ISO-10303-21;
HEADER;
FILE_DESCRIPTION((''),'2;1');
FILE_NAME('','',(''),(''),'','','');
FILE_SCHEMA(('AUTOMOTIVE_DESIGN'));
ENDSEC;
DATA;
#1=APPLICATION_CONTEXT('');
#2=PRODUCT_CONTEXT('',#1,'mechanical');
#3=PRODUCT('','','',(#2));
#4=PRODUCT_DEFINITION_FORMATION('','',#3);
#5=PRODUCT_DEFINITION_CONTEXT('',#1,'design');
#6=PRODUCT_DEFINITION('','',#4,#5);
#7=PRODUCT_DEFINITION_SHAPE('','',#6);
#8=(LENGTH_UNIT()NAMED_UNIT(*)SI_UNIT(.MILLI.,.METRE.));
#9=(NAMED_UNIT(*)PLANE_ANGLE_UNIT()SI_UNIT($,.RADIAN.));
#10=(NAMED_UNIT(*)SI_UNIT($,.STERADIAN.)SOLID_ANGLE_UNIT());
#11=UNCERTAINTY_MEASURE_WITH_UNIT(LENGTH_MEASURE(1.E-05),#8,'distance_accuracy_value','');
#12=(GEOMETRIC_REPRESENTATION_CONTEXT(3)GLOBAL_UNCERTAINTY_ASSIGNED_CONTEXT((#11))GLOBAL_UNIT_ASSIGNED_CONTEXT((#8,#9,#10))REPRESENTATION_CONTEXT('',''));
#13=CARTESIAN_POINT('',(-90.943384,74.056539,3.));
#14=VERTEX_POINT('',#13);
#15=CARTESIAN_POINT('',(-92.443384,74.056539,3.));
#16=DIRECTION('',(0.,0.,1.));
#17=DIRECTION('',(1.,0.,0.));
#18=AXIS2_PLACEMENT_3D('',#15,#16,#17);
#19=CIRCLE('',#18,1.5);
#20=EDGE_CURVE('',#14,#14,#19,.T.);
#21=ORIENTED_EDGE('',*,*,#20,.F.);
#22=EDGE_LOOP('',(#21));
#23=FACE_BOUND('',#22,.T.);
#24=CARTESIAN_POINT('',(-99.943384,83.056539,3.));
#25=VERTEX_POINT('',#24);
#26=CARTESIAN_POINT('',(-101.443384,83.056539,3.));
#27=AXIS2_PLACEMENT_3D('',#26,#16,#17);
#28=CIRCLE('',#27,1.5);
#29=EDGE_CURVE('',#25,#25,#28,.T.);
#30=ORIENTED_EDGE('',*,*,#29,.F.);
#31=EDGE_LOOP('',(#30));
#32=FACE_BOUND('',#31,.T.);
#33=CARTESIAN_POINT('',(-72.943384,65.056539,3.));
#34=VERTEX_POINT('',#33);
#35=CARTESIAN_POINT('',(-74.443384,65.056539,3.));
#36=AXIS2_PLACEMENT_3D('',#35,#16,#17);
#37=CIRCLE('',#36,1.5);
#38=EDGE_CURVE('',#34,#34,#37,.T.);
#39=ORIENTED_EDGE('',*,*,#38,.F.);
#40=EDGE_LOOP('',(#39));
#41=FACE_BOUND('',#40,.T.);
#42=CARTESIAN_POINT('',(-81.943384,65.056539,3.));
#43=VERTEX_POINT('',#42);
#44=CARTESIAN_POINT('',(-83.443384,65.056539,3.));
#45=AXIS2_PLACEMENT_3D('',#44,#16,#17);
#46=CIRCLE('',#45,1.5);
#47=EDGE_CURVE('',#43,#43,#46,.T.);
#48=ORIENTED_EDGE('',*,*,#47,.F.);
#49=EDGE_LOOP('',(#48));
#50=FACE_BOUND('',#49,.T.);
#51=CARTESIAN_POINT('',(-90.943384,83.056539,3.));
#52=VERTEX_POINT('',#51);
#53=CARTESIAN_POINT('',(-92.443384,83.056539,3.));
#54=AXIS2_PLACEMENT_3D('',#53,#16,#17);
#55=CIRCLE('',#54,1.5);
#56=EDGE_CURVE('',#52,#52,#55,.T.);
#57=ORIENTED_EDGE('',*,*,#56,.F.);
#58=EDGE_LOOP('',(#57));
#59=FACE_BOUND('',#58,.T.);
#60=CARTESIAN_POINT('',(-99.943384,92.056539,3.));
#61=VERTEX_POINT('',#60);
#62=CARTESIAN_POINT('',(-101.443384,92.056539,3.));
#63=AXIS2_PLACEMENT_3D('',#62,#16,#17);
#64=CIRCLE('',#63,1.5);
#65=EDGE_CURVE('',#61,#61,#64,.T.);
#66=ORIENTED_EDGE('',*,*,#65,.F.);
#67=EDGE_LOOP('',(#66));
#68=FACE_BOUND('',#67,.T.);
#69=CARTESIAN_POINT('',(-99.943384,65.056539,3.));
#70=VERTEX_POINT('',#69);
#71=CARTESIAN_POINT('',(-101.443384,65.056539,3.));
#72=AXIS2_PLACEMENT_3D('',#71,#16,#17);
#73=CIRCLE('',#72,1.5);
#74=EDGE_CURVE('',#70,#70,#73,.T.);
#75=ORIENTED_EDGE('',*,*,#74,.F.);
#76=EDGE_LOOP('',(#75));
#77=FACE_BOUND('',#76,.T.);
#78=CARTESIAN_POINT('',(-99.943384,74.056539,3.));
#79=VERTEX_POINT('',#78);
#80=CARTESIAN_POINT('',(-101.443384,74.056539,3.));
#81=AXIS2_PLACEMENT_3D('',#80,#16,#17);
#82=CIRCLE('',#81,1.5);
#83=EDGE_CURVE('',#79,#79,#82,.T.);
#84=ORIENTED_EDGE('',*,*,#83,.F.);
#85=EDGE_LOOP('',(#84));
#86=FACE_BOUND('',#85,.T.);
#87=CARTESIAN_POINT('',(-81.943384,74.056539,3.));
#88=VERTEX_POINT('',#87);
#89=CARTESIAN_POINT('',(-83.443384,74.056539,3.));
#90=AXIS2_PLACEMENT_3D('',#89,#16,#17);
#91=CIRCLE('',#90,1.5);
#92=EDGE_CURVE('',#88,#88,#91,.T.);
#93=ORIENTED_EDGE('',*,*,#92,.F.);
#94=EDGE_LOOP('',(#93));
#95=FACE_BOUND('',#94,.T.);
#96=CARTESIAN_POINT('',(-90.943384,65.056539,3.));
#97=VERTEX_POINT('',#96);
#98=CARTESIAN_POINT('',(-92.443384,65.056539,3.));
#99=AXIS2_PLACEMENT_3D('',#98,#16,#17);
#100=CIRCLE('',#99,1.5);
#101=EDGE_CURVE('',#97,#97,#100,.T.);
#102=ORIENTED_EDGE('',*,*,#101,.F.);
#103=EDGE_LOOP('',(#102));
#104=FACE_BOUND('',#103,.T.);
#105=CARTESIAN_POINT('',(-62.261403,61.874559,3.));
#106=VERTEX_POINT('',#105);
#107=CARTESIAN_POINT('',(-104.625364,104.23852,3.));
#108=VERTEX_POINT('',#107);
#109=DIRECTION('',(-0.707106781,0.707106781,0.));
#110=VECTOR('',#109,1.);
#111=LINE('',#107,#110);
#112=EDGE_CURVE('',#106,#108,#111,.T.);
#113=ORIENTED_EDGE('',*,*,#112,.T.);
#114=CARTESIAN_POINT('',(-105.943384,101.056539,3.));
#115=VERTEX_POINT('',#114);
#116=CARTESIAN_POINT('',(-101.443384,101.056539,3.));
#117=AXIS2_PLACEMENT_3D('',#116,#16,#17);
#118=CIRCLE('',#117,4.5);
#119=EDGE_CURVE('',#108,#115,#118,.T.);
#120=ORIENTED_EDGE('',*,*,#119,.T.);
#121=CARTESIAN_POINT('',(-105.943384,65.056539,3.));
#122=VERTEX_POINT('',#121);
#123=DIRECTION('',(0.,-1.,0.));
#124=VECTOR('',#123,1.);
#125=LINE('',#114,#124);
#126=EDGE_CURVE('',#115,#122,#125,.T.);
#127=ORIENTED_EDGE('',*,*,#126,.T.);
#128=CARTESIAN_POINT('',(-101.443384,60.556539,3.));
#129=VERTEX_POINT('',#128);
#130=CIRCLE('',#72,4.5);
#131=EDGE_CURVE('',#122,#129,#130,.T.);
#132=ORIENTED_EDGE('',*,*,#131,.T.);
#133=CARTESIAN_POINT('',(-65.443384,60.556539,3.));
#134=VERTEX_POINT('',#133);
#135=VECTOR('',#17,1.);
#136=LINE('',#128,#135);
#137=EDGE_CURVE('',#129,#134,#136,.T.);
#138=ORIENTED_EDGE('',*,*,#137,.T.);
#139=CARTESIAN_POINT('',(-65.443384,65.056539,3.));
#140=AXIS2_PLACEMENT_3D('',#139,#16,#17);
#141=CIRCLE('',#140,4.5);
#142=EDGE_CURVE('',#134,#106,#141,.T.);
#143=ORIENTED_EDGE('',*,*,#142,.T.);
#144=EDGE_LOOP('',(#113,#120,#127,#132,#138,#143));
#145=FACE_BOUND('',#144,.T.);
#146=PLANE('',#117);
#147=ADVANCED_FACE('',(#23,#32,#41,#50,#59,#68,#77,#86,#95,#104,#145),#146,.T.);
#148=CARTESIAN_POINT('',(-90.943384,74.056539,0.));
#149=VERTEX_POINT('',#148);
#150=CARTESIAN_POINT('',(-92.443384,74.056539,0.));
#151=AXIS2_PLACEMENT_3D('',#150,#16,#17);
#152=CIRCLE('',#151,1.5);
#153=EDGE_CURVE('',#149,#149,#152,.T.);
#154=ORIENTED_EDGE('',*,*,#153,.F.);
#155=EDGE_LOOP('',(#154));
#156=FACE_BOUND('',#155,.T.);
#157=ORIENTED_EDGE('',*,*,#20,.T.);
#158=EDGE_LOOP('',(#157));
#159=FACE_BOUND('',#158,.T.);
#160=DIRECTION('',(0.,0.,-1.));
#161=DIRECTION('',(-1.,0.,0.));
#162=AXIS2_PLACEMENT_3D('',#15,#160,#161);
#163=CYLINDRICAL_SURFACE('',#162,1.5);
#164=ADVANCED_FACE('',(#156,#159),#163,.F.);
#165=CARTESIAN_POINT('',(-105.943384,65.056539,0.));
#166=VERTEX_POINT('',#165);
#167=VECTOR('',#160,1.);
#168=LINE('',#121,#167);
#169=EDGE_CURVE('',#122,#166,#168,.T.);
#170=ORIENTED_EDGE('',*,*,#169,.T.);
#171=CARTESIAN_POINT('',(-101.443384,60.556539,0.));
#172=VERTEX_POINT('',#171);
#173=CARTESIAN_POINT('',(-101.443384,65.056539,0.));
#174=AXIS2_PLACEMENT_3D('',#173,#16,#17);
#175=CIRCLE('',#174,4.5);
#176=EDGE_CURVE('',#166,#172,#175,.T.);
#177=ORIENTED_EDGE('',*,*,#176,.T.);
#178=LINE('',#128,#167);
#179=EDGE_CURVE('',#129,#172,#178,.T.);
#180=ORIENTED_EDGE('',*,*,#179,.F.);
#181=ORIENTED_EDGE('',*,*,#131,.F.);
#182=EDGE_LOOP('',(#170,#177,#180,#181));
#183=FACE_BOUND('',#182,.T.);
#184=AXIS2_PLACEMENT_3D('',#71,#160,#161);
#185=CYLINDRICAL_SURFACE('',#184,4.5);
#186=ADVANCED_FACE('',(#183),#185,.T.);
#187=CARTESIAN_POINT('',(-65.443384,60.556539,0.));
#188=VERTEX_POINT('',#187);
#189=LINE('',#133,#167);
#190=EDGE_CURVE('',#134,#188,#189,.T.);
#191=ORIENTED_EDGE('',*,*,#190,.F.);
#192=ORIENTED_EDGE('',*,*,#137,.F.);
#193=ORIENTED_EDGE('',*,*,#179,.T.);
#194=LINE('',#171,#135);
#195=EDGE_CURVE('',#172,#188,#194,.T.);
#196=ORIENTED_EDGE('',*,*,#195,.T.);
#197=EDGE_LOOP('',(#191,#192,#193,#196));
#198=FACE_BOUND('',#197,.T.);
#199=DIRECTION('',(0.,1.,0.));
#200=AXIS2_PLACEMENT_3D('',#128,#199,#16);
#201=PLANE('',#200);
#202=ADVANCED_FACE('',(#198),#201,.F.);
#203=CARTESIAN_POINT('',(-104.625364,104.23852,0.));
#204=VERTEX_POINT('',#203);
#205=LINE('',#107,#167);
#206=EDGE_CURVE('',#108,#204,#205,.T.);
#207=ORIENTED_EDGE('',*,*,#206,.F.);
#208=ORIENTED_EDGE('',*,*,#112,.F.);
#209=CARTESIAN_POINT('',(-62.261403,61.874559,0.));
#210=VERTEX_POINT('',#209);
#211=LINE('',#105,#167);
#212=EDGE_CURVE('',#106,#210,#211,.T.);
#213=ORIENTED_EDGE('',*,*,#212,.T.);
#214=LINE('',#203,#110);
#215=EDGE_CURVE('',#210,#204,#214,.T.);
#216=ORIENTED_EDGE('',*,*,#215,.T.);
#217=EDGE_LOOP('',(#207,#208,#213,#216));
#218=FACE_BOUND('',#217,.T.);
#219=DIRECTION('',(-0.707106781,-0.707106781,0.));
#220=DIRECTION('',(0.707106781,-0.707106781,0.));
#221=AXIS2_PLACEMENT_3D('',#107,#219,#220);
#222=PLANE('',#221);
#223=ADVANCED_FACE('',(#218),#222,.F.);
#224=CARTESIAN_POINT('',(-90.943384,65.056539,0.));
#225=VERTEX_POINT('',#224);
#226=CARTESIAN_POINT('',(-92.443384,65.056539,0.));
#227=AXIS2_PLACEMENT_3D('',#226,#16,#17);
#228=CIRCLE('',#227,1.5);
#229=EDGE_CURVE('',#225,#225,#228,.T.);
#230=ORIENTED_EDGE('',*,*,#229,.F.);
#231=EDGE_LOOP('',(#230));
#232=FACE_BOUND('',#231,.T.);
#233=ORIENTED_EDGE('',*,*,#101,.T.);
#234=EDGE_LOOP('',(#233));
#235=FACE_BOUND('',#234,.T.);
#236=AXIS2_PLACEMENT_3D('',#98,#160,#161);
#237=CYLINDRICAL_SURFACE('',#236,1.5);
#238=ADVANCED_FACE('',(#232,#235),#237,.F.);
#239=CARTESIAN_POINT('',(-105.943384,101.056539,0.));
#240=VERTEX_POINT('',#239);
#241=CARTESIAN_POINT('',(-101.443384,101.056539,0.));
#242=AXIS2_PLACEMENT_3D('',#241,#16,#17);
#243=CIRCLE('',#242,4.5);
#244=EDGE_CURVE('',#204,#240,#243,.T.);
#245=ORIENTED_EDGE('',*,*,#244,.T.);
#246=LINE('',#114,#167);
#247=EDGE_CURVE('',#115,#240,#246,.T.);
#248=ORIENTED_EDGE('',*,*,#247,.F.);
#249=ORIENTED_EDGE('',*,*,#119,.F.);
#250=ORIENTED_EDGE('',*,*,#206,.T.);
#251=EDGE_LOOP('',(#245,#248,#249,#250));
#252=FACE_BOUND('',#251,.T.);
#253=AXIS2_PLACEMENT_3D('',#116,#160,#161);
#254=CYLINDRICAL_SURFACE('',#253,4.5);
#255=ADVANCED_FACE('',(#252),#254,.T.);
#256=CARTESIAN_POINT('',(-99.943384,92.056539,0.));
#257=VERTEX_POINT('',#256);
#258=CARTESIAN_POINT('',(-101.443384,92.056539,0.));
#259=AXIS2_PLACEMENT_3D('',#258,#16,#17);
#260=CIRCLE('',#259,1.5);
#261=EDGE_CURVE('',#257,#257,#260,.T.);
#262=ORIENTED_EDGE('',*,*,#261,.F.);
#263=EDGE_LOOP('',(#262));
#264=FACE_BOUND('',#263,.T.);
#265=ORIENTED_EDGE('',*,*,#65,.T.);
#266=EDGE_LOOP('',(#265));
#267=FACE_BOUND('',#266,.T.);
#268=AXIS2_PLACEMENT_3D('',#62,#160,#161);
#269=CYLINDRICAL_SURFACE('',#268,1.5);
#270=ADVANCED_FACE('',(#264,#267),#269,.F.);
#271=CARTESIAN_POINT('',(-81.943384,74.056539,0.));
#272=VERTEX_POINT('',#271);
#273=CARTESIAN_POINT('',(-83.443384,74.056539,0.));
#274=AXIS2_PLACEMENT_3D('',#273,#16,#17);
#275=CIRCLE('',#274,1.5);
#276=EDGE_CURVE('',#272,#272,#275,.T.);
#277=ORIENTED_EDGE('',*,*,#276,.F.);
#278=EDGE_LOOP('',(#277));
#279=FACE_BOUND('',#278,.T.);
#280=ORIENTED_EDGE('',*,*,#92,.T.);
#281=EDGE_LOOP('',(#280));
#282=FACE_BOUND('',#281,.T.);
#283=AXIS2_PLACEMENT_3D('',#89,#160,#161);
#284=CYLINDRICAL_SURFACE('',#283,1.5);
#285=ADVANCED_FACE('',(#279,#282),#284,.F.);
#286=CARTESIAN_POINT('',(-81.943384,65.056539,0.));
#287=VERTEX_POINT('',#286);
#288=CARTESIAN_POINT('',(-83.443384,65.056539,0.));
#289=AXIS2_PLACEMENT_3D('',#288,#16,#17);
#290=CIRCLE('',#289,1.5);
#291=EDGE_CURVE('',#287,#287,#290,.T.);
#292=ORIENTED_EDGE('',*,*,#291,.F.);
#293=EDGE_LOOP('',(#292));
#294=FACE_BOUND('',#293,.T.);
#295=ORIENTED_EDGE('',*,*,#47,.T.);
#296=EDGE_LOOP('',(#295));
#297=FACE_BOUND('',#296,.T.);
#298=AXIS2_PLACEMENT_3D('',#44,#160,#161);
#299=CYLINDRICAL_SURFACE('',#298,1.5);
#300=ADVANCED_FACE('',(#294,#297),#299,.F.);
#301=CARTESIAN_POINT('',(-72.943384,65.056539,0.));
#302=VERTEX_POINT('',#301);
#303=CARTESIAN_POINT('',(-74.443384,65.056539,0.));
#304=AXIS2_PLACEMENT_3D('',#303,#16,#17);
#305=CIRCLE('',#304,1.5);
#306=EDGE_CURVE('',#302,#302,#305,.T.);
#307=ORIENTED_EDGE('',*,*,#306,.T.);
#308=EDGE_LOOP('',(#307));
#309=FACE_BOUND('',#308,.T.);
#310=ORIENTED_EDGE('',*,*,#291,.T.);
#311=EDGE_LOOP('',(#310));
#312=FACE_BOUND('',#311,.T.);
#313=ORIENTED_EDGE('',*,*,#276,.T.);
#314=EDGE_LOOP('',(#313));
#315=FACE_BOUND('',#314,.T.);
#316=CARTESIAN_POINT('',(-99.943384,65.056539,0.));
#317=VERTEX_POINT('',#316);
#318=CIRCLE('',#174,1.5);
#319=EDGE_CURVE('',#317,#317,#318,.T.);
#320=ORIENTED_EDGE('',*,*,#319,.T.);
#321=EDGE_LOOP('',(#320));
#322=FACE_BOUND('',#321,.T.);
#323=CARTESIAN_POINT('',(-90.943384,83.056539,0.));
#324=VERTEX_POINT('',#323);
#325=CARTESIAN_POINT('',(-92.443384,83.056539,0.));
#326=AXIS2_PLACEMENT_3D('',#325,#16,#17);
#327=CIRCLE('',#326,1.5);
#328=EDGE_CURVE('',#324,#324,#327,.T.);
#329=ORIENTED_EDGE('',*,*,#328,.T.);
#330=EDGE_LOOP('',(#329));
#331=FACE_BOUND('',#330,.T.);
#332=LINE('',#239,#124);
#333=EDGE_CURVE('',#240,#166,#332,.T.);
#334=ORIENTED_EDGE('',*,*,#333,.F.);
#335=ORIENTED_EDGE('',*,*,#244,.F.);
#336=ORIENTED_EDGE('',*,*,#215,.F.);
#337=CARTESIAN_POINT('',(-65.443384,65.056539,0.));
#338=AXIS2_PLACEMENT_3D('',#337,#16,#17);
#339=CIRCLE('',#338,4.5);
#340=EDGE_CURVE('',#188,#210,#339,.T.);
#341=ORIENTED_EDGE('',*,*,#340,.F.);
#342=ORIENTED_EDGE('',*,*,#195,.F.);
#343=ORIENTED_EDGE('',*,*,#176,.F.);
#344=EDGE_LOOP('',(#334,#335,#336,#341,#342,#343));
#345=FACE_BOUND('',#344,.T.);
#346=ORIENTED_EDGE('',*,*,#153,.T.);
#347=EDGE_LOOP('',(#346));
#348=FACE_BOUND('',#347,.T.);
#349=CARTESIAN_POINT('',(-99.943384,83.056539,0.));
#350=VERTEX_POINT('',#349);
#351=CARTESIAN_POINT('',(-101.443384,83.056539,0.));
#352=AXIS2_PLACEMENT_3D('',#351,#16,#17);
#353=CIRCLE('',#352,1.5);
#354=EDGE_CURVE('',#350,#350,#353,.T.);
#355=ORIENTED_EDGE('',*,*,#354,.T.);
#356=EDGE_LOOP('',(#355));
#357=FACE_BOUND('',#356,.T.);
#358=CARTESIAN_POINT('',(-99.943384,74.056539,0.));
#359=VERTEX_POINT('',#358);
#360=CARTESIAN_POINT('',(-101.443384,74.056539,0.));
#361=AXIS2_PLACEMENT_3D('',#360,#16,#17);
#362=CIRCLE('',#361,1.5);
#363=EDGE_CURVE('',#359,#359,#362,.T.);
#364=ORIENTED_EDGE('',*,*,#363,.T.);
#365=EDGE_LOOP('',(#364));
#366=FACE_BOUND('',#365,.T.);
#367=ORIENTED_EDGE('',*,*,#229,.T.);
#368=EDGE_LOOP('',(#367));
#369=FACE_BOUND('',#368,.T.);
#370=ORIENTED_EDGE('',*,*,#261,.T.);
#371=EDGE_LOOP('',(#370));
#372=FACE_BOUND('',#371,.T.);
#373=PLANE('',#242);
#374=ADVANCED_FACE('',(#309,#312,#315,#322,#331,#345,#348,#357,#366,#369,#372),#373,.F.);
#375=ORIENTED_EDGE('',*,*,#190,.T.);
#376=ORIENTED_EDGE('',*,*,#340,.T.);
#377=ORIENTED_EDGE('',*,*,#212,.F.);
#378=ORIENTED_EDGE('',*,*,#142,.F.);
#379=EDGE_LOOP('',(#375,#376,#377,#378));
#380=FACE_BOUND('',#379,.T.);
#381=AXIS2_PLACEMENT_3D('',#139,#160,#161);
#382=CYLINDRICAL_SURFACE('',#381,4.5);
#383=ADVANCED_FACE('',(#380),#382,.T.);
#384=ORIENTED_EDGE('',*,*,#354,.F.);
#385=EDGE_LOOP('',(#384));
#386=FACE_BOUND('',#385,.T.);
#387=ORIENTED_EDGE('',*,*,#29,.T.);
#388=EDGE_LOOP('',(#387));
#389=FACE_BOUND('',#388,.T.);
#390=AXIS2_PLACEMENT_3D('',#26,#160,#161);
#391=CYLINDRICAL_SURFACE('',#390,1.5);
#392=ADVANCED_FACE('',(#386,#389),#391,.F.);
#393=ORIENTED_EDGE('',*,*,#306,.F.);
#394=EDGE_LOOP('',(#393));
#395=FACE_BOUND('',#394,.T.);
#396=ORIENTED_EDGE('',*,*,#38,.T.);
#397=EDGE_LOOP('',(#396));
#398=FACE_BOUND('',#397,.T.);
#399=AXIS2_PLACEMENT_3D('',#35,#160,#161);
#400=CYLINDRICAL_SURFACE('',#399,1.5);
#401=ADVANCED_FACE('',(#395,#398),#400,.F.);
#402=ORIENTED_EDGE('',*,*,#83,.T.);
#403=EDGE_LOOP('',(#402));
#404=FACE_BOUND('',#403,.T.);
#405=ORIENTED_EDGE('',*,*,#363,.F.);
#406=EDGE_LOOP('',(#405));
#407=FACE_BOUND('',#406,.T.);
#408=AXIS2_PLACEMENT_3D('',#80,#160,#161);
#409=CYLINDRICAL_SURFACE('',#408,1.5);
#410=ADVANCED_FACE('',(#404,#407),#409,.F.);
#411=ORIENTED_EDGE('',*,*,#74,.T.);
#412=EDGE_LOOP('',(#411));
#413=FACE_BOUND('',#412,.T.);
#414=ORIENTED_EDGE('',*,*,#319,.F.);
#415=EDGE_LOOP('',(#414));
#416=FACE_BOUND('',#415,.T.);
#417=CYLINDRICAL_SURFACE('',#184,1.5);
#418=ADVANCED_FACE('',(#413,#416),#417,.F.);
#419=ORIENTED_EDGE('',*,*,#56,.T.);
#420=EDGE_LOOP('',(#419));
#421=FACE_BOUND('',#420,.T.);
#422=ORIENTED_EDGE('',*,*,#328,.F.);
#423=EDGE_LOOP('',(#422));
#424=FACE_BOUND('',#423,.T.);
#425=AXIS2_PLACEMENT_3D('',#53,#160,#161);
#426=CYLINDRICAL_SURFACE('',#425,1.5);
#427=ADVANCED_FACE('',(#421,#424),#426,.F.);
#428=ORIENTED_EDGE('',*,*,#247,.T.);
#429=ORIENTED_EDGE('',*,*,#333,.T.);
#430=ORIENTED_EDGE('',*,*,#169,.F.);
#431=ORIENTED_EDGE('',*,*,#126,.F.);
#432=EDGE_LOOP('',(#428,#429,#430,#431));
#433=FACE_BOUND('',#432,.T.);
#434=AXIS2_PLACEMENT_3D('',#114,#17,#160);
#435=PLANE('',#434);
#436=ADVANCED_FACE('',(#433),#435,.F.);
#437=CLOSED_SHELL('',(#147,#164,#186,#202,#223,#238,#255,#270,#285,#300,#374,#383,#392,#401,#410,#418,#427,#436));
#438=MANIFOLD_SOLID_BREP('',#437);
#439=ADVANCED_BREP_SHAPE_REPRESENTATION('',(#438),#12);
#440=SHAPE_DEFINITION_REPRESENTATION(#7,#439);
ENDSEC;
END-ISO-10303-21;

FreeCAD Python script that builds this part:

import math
import FreeCAD as App
import Part
import Sketcher
from FreeCAD import Vector
Q = App.Units.Quantity

doc = App.newDocument("Part")
body = doc.addObject("PartDesign::Body", "Body")

# Sketch on XY plane
sketch1 = doc.addObject("Sketcher::SketchObject", "Sketch")
body.addObject(sketch1)
sketch1.AttachmentSupport = (doc.XY_Plane, [""])
sketch1.MapMode = "FlatFace"
sketch1.addGeometry(Part.LineSegment(Vector(-105.9, 101.1, 0), Vector(-105.9, 65.1, 0)), False)
sketch1.addGeometry(Part.ArcOfCircle(Part.Circle(Vector(-101.4, 65.1, 0), Vector(0, 0, 1), 4.5), math.radians(-180), math.radians(-90)), False)
sketch1.addGeometry(Part.LineSegment(Vector(-101.4, 60.6, 0), Vector(-65.4, 60.6, 0)), False)
sketch1.addGeometry(Part.ArcOfCircle(Part.Circle(Vector(-65.4, 65.1, 0), Vector(0, 0, 1), 4.5), math.radians(-90), math.radians(-45)), False)
sketch1.addGeometry(Part.LineSegment(Vector(-62.3, 61.9, 0), Vector(-104.6, 104.2, 0)), False)
sketch1.addGeometry(Part.ArcOfCircle(Part.Circle(Vector(-101.4, 101.1, 0), Vector(0, 0, 1), 4.5), math.radians(135), math.radians(180)), False)
sketch1.addGeometry(Part.Circle(Vector(-101.4, 65.1, 0), Vector(0, 0, 1), 1.5), False)
sketch1.addGeometry(Part.Circle(Vector(-92.4, 65.1, 0), Vector(0, 0, 1), 1.5), False)
sketch1.addGeometry(Part.Circle(Vector(-101.4, 74.1, 0), Vector(0, 0, 1), 1.5), False)
sketch1.addGeometry(Part.Circle(Vector(-92.4, 74.1, 0), Vector(0, 0, 1), 1.5), False)
sketch1.addGeometry(Part.Circle(Vector(-83.4, 65.1, 0), Vector(0, 0, 1), 1.5), False)
sketch1.addGeometry(Part.Circle(Vector(-74.4, 65.1, 0), Vector(0, 0, 1), 1.5), False)
sketch1.addGeometry(Part.Circle(Vector(-83.4, 74.1, 0), Vector(0, 0, 1), 1.5), False)
sketch1.addGeometry(Part.Circle(Vector(-101.4, 83.1, 0), Vector(0, 0, 1), 1.5), False)
sketch1.addGeometry(Part.Circle(Vector(-92.4, 83.1, 0), Vector(0, 0, 1), 1.5), False)
sketch1.addGeometry(Part.Circle(Vector(-101.4, 92.1, 0), Vector(0, 0, 1), 1.5), False)
sketch1.addConstraint(Sketcher.Constraint("Tangent", 0, 2, 1, 1))
sketch1.addConstraint(Sketcher.Constraint("Tangent", 1, 2, 2, 1))
sketch1.addConstraint(Sketcher.Constraint("Tangent", 2, 2, 3, 1))
sketch1.addConstraint(Sketcher.Constraint("Coincident", 3, 2, 4, 1))
sketch1.addConstraint(Sketcher.Constraint("Coincident", 4, 2, 5, 1))
sketch1.addConstraint(Sketcher.Constraint("Tangent", 5, 2, 0, 1))
sketch1.addConstraint(Sketcher.Constraint("Vertical", 0))
sketch1.addConstraint(Sketcher.Constraint("Horizontal", 2))
sketch1.addConstraint(Sketcher.Constraint("Coincident", 6, 3, 1, 3))
sketch1.addConstraint(Sketcher.Constraint("Equal", 1, 3))
sketch1.addConstraint(Sketcher.Constraint("Equal", 3, 5))
sketch1.addConstraint(Sketcher.Constraint("Equal", 6, 7))
sketch1.addConstraint(Sketcher.Constraint("Equal", 7, 8))
sketch1.addConstraint(Sketcher.Constraint("Equal", 8, 9))
sketch1.addConstraint(Sketcher.Constraint("Equal", 9, 10))
sketch1.addConstraint(Sketcher.Constraint("Equal", 10, 11))
sketch1.addConstraint(Sketcher.Constraint("Equal", 11, 12))
sketch1.addConstraint(Sketcher.Constraint("Equal", 12, 13))
sketch1.addConstraint(Sketcher.Constraint("Equal", 13, 14))
sketch1.addConstraint(Sketcher.Constraint("Equal", 14, 15))
sketch1.addConstraint(Sketcher.Constraint("Horizontal", 6, 3, 7, 3))
sketch1.addConstraint(Sketcher.Constraint("Horizontal", 8, 3, 9, 3))
sketch1.addConstraint(Sketcher.Constraint("Horizontal", 7, 3, 10, 3))
sketch1.addConstraint(Sketcher.Constraint("Horizontal", 10, 3, 11, 3))
sketch1.addConstraint(Sketcher.Constraint("Horizontal", 9, 3, 12, 3))
sketch1.addConstraint(Sketcher.Constraint("Horizontal", 13, 3, 14, 3))
sketch1.addConstraint(Sketcher.Constraint("Vertical", 6, 3, 8, 3))
sketch1.addConstraint(Sketcher.Constraint("Vertical", 7, 3, 9, 3))
sketch1.addConstraint(Sketcher.Constraint("Vertical", 10, 3, 12, 3))
sketch1.addConstraint(Sketcher.Constraint("Vertical", 8, 3, 13, 3))
sketch1.addConstraint(Sketcher.Constraint("Vertical", 9, 3, 14, 3))
sketch1.addConstraint(Sketcher.Constraint("Vertical", 13, 3, 15, 3))
sketch1.addConstraint(Sketcher.Constraint("Equal", 2, 0))
sketch1.addConstraint(Sketcher.Constraint("Diameter", 6, Q("3 mm")))
sketch1.addConstraint(Sketcher.Constraint("Radius", 1, Q("4.5 mm")))
sketch1.addConstraint(Sketcher.Constraint("DistanceX", 2, 1, 2, 2, Q("36 mm")))
sketch1.addConstraint(Sketcher.Constraint("Angle", 4, Q("135 deg")))
sketch1.addConstraint(Sketcher.Constraint("DistanceX", 1, 3, 7, 3, Q("9 mm")))
sketch1.addConstraint(Sketcher.Constraint("DistanceY", 1, 3, 8, 3, Q("9 mm")))
sketch1.addConstraint(Sketcher.Constraint("DistanceX", 7, 3, 10, 3, Q("9 mm")))
sketch1.addConstraint(Sketcher.Constraint("DistanceX", 11, 3, 3, 3, Q("9 mm")))
sketch1.addConstraint(Sketcher.Constraint("DistanceY", 8, 3, 13, 3, Q("9 mm")))
sketch1.addConstraint(Sketcher.Constraint("DistanceY", 15, 3, 5, 3, Q("9 mm")))
sketch1.addConstraint(Sketcher.Constraint("DistanceY", -1, 1, 1, 3, Q("65.056539 mm")))
sketch1.addConstraint(Sketcher.Constraint("DistanceY", -1, 1, 3, 2, Q("61.874559 mm")))
sketch1.addConstraint(Sketcher.Constraint("DistanceX", 1, 3, -1, 1, Q("101.443384 mm")))
pad1 = doc.addObject("PartDesign::Pad", "Pad")
body.addObject(pad1)
pad1.Profile = sketch1
pad1.Length = 3

doc.recompute()
